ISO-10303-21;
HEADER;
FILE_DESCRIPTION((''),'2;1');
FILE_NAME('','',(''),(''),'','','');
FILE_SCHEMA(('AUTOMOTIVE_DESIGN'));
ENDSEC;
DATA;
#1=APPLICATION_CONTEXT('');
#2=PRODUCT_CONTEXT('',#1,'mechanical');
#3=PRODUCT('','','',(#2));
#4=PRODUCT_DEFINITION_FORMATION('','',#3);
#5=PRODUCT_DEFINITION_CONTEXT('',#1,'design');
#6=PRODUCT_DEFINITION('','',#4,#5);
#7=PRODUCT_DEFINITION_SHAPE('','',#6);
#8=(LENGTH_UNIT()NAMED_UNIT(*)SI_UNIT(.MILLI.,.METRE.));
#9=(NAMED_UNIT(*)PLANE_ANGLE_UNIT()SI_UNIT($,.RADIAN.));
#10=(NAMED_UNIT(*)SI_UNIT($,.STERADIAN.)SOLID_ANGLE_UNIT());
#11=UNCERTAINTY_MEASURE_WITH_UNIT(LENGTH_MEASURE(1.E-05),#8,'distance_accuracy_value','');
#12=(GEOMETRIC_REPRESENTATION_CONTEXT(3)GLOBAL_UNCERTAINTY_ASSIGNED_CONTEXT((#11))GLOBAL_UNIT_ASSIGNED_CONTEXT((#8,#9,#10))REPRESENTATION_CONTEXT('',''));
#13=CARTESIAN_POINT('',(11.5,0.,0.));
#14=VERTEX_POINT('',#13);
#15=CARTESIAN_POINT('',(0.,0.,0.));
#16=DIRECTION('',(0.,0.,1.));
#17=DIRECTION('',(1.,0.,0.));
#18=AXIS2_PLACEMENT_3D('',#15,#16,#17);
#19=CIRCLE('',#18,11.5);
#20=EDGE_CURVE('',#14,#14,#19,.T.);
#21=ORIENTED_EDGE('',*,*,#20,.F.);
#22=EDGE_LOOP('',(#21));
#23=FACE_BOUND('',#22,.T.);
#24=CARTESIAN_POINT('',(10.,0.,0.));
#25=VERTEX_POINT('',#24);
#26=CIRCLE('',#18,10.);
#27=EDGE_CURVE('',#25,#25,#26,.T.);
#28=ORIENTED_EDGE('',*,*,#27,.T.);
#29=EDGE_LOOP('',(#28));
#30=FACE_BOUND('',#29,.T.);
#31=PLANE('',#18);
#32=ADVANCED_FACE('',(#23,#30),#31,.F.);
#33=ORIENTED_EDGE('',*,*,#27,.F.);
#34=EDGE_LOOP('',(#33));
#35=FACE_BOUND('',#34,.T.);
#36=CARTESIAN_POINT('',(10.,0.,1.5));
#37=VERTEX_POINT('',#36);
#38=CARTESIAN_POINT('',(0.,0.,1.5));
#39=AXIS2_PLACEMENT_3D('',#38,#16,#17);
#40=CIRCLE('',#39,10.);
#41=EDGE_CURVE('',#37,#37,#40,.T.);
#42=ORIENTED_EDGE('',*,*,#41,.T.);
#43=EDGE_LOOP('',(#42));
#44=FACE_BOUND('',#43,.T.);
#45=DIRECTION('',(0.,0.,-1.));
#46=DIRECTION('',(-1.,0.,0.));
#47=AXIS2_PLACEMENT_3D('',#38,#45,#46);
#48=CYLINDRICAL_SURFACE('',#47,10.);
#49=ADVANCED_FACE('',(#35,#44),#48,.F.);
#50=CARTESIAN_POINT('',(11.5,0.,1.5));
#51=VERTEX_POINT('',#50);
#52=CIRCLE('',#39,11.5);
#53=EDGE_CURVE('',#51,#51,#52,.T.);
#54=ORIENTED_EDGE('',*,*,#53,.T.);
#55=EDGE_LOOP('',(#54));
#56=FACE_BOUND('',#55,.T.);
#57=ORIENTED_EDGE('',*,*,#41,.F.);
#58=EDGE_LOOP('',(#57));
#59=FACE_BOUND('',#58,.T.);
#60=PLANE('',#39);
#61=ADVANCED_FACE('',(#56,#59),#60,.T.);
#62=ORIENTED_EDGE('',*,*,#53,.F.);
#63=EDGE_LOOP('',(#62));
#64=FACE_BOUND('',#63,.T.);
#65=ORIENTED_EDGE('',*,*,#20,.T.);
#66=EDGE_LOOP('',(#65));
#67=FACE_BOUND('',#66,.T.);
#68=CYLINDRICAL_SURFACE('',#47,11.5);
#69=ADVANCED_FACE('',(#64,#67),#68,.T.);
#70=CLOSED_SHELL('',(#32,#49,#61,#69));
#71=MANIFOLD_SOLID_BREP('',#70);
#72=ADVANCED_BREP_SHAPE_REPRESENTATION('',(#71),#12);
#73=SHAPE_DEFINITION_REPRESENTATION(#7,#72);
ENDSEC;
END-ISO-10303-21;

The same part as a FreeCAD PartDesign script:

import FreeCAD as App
import Part
import Sketcher

V = App.Vector

doc = App.newDocument("Part")
params = doc.addObject("Spreadsheet::Sheet", "Params")
for row, (alias, value) in enumerate([
    ("sketch1_diameter", "23 mm"),
    ("sketch1_diameter2", "20 mm"),
    ("pad1_length", "1.5 mm"),
], start=1):
    params.set(f"A{row}", alias)
    params.set(f"B{row}", "=" + value)
    params.setAlias(f"B{row}", alias)

body = doc.addObject("PartDesign::Body", "Body")

sketch1 = body.newObject("Sketcher::SketchObject", "Sketch")
sketch1.AttachmentSupport = (doc.getObject("XY_Plane"), [""])
sketch1.MapMode = "FlatFace"
sketch1.addGeometry([
    Part.Circle(V(0, 0, 0), V(0, 0, 1), 12),
    Part.Circle(V(0, 0, 0), V(0, 0, 1), 10),
], False)
sketch1.addConstraint([
    Sketcher.Constraint("Coincident", 0, 3, -1, 1),
    Sketcher.Constraint("Coincident", 1, 3, -1, 1),
    Sketcher.Constraint("Diameter", 0, 23.0),
    Sketcher.Constraint("Diameter", 1, 20.0),
])
sketch1.setExpression("Constraints[2]", "Params.sketch1_diameter")
sketch1.setExpression("Constraints[3]", "Params.sketch1_diameter2")
pad1 = body.newObject("PartDesign::Pad", "Pad")
pad1.Profile = sketch1
pad1.setExpression("Length", "Params.pad1_length")

doc.recompute()
